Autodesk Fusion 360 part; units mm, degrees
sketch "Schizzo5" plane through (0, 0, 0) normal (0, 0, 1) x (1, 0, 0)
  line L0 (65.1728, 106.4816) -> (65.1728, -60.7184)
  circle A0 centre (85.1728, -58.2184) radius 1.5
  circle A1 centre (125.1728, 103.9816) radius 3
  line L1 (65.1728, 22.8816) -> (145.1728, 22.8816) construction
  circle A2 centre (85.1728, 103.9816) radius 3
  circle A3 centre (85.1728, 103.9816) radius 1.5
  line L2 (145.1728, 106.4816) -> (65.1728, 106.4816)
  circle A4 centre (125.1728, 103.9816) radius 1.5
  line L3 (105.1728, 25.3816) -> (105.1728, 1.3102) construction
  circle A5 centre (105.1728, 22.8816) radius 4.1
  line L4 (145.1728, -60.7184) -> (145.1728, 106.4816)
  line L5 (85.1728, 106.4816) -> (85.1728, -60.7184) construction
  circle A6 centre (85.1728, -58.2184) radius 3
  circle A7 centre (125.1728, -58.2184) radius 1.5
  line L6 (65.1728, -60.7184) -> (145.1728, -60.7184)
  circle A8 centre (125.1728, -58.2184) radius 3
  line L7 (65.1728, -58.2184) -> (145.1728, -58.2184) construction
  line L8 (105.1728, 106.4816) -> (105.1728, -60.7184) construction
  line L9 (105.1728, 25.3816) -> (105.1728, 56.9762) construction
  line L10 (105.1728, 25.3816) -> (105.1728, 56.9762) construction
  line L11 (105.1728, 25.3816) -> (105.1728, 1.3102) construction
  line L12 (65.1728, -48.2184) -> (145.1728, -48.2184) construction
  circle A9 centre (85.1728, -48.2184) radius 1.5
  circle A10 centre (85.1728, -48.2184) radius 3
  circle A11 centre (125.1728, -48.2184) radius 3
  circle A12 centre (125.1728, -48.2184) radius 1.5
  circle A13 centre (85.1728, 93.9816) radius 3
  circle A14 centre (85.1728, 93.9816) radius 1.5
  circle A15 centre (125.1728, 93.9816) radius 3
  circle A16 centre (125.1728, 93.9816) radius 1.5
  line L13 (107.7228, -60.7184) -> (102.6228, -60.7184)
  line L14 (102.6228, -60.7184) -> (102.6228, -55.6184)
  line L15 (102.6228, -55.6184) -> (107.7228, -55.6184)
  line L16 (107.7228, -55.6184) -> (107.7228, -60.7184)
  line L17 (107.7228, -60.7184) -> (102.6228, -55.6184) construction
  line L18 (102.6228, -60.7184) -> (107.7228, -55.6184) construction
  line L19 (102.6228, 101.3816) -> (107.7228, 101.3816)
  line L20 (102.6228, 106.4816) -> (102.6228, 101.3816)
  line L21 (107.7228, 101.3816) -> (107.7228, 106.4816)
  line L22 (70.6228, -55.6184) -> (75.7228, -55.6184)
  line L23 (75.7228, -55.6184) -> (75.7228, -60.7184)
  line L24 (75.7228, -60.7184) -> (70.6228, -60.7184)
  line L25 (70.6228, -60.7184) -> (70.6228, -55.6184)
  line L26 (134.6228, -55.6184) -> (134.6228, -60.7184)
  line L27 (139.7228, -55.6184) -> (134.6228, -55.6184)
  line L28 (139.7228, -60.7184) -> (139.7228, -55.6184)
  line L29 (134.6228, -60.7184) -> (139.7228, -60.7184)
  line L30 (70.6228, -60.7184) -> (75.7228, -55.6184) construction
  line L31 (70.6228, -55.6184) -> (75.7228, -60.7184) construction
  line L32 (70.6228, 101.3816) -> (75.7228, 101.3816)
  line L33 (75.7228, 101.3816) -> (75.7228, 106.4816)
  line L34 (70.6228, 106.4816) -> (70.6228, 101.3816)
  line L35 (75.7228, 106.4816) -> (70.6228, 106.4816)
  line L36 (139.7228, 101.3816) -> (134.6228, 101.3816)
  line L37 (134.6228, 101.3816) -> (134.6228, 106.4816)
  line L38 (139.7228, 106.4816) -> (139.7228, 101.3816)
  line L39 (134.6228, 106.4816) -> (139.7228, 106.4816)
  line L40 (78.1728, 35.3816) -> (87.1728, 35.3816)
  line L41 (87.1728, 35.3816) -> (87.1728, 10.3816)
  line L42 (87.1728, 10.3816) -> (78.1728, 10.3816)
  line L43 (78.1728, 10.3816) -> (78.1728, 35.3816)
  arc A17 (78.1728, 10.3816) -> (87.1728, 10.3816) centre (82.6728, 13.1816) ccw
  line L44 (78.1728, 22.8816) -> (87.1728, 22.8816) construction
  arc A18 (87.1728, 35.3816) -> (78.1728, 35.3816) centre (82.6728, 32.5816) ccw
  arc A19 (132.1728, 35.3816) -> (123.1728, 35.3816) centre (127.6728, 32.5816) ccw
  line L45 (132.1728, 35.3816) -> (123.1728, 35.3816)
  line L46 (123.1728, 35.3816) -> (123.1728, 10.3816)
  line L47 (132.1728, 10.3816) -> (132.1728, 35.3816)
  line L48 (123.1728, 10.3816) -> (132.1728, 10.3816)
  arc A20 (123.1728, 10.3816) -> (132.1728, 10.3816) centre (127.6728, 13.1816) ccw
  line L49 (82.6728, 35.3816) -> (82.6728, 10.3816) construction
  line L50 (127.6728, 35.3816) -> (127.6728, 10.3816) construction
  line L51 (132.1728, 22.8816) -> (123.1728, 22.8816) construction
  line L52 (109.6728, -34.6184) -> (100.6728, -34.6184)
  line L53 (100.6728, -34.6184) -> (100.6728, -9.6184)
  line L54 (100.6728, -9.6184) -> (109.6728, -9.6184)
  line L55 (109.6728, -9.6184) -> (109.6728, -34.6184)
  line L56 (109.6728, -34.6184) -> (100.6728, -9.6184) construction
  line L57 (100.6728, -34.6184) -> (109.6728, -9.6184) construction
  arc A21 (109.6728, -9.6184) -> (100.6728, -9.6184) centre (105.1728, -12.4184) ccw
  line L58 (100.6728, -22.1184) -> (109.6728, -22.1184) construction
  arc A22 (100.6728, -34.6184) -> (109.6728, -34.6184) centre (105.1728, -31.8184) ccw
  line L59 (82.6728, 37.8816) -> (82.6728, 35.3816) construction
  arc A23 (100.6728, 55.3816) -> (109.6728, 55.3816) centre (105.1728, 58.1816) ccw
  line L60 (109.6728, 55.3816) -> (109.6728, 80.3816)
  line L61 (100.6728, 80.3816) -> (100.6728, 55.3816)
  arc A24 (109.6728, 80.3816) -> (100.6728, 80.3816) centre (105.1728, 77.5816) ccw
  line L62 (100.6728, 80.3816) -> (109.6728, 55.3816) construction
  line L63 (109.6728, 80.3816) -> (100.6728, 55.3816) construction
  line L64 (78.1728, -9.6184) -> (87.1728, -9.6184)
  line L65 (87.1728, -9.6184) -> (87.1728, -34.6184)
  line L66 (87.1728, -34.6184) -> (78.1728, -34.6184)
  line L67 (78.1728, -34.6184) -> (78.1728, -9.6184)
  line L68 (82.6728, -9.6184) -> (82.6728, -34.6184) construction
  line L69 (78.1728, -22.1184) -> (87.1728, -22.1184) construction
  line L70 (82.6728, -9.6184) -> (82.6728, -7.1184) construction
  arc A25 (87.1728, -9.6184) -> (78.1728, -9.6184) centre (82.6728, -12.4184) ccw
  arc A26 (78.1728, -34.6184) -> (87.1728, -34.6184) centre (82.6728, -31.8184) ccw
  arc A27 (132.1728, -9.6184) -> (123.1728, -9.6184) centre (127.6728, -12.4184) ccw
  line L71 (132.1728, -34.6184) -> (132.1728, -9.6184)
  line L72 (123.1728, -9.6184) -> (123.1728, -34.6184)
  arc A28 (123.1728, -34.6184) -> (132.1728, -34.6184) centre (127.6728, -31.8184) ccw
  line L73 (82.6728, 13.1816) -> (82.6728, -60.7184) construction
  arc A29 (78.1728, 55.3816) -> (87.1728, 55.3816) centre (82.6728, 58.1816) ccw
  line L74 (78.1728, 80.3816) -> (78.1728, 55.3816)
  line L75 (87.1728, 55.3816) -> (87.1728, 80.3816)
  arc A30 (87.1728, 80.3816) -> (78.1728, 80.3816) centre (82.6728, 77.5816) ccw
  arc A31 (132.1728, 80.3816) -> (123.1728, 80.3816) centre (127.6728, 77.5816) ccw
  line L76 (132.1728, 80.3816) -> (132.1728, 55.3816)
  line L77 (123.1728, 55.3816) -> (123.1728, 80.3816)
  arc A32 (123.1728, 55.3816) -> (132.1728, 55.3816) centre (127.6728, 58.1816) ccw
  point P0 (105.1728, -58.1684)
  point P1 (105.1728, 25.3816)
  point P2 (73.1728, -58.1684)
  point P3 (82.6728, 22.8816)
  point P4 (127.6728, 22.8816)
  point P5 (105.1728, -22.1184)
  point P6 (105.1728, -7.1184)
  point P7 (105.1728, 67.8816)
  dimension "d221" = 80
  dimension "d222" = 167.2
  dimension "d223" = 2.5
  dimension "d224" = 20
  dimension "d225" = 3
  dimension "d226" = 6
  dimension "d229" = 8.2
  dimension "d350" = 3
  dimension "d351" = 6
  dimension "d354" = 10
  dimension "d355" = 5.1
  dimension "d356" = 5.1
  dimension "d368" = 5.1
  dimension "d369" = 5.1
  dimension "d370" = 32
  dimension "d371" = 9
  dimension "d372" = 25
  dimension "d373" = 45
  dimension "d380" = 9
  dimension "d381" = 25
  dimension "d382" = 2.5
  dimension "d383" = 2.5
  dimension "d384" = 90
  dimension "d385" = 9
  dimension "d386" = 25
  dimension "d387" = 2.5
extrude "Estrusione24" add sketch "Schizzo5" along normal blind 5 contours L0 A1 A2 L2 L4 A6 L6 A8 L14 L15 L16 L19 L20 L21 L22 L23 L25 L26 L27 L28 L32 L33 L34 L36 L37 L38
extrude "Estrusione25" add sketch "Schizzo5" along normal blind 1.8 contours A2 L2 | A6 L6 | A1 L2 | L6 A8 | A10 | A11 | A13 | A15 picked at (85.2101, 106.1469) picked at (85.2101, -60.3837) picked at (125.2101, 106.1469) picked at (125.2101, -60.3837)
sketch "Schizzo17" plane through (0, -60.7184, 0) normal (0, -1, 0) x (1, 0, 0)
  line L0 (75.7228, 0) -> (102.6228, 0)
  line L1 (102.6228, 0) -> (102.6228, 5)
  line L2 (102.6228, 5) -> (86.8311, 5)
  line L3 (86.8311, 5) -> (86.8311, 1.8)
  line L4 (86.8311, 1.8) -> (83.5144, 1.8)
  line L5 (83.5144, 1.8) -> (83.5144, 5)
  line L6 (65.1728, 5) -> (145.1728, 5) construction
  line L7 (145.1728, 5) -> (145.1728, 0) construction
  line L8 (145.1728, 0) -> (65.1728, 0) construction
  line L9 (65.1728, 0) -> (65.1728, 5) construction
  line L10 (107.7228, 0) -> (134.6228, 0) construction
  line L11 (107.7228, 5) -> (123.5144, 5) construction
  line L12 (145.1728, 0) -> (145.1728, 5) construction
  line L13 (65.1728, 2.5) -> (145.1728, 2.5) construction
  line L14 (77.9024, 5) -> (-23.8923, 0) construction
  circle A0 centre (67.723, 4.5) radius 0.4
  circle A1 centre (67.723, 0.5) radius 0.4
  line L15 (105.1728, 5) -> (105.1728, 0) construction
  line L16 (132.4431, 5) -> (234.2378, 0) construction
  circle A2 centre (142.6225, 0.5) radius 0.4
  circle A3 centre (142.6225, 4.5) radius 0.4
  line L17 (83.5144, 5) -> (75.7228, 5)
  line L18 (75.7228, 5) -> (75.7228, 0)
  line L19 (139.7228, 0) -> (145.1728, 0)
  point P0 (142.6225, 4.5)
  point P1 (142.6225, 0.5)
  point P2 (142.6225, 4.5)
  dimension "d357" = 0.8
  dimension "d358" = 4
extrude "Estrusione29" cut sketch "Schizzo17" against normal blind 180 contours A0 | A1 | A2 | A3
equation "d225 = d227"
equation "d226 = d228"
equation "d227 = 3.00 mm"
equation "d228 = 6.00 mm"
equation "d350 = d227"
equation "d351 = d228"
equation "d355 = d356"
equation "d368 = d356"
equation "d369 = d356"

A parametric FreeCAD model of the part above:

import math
import FreeCAD as App
import Part
import Sketcher

V = App.Vector
Q = App.Units.Quantity

doc = App.newDocument("Part")
body = doc.addObject("PartDesign::Body", "Body")

sketch1 = body.newObject("Sketcher::SketchObject", "Sketch")
sketch1.AttachmentSupport = (doc.getObject("XY_Plane"), [""])
sketch1.MapMode = "FlatFace"
sketch1.addGeometry([
    Part.LineSegment(V(70.6228, 106.4816, 0), V(65.1728, 106.4816, 0)),
    Part.LineSegment(V(65.1728, 106.4816, 0), V(65.1728, -60.7184, 0)),
    Part.LineSegment(V(65.1728, -60.7184, 0), V(70.6228, -60.7184, 0)),
    Part.LineSegment(V(70.6228, -60.7184, 0), V(70.6228, -55.6184, 0)),
    Part.LineSegment(V(70.6228, -55.6184, 0), V(75.7228, -55.6184, 0)),
    Part.LineSegment(V(75.7228, -55.6184, 0), V(75.7228, -60.7184, 0)),
    Part.LineSegment(V(75.7228, -60.7184, 0), V(83.514488, -60.7184, 0)),
    Part.ArcOfCircle(Part.Circle(V(85.1728, -58.2184, 0), V(0, 0, 1), 3), math.radians(-56.44269), math.radians(236.44269)),
    Part.LineSegment(V(86.831112, -60.7184, 0), V(102.6228, -60.7184, 0)),
    Part.LineSegment(V(102.6228, -60.7184, 0), V(102.6228, -55.6184, 0)),
    Part.LineSegment(V(102.6228, -55.6184, 0), V(107.7228, -55.6184, 0)),
    Part.LineSegment(V(107.7228, -55.6184, 0), V(107.7228, -60.7184, 0)),
    Part.LineSegment(V(107.7228, -60.7184, 0), V(123.514488, -60.7184, 0)),
    Part.ArcOfCircle(Part.Circle(V(125.1728, -58.2184, 0), V(0, 0, 1), 3), math.radians(-56.44269), math.radians(236.44269)),
    Part.LineSegment(V(126.831112, -60.7184, 0), V(134.6228, -60.7184, 0)),
    Part.LineSegment(V(134.6228, -60.7184, 0), V(134.6228, -55.6184, 0)),
    Part.LineSegment(V(134.6228, -55.6184, 0), V(139.7228, -55.6184, 0)),
    Part.LineSegment(V(139.7228, -55.6184, 0), V(139.7228, -60.7184, 0)),
    Part.LineSegment(V(139.7228, -60.7184, 0), V(145.1728, -60.7184, 0)),
    Part.LineSegment(V(145.1728, -60.7184, 0), V(145.1728, 106.4816, 0)),
    Part.LineSegment(V(145.1728, 106.4816, 0), V(139.7228, 106.4816, 0)),
    Part.LineSegment(V(139.7228, 106.4816, 0), V(139.7228, 101.3816, 0)),
    Part.LineSegment(V(139.7228, 101.3816, 0), V(134.6228, 101.3816, 0)),
    Part.LineSegment(V(134.6228, 101.3816, 0), V(134.6228, 106.4816, 0)),
    Part.LineSegment(V(134.6228, 106.4816, 0), V(126.831112, 106.4816, 0)),
    Part.ArcOfCircle(Part.Circle(V(125.1728, 103.9816, 0), V(0, 0, 1), 3), math.radians(123.55731), math.radians(416.44269)),
    Part.LineSegment(V(123.514488, 106.4816, 0), V(107.7228, 106.4816, 0)),
    Part.LineSegment(V(107.7228, 106.4816, 0), V(107.7228, 101.3816, 0)),
    Part.LineSegment(V(107.7228, 101.3816, 0), V(102.6228, 101.3816, 0)),
    Part.LineSegment(V(102.6228, 101.3816, 0), V(102.6228, 106.4816, 0)),
    Part.LineSegment(V(102.6228, 106.4816, 0), V(86.831112, 106.4816, 0)),
    Part.ArcOfCircle(Part.Circle(V(85.1728, 103.9816, 0), V(0, 0, 1), 3), math.radians(123.55731), math.radians(416.44269)),
    Part.LineSegment(V(83.514488, 106.4816, 0), V(75.7228, 106.4816, 0)),
    Part.LineSegment(V(75.7228, 106.4816, 0), V(75.7228, 101.3816, 0)),
    Part.LineSegment(V(75.7228, 101.3816, 0), V(70.6228, 101.3816, 0)),
    Part.LineSegment(V(70.6228, 101.3816, 0), V(70.6228, 106.4816, 0)),
    Part.LineSegment(V(78.1728, -34.6184, 0), V(78.1728, -9.6184, 0)),
    Part.ArcOfCircle(Part.Circle(V(82.6728, -12.4184, 0), V(0, 0, 1), 5.3), math.radians(31.890792), math.radians(148.109208)),
    Part.LineSegment(V(87.1728, -9.6184, 0), V(87.1728, -34.6184, 0)),
    Part.ArcOfCircle(Part.Circle(V(82.6728, -31.8184, 0), V(0, 0, 1), 5.3), math.radians(-148.109208), math.radians(-31.890792)),
    Part.Circle(V(85.1728, -48.2184, 0), V(0, 0, 1), 3),
    Part.LineSegment(V(109.6728, -9.6184, 0), V(109.6728, -34.6184, 0)),
    Part.ArcOfCircle(Part.Circle(V(105.1728, -31.8184, 0), V(0, 0, 1), 5.3), math.radians(-148.109208), math.radians(-31.890792)),
    Part.LineSegment(V(100.6728, -34.6184, 0), V(100.6728, -9.6184, 0)),
    Part.ArcOfCircle(Part.Circle(V(105.1728, -12.4184, 0), V(0, 0, 1), 5.3), math.radians(31.890792), math.radians(148.109208)),
    Part.Circle(V(125.1728, -48.2184, 0), V(0, 0, 1), 3),
    Part.ArcOfCircle(Part.Circle(V(127.6728, -12.4184, 0), V(0, 0, 1), 5.3), math.radians(31.890792), math.radians(148.109208)),
    Part.LineSegment(V(132.1728, -9.6184, 0), V(132.1728, -34.6184, 0)),
    Part.ArcOfCircle(Part.Circle(V(127.6728, -31.8184, 0), V(0, 0, 1), 5.3), math.radians(-148.109208), math.radians(-31.890792)),
    Part.LineSegment(V(123.1728, -34.6184, 0), V(123.1728, -9.6184, 0)),
    Part.LineSegment(V(78.1728, 10.3816, 0), V(78.1728, 35.3816, 0)),
    Part.ArcOfCircle(Part.Circle(V(82.6728, 32.5816, 0), V(0, 0, 1), 5.3), math.radians(31.890792), math.radians(148.109208)),
    Part.LineSegment(V(87.1728, 35.3816, 0), V(87.1728, 10.3816, 0)),
    Part.ArcOfCircle(Part.Circle(V(82.6728, 13.1816, 0), V(0, 0, 1), 5.3), math.radians(-148.109208), math.radians(-31.890792)),
    Part.ArcOfCircle(Part.Circle(V(82.6728, 58.1816, 0), V(0, 0, 1), 5.3), math.radians(-148.109208), math.radians(-31.890792)),
    Part.LineSegment(V(78.1728, 55.3816, 0), V(78.1728, 80.3816, 0)),
    Part.ArcOfCircle(Part.Circle(V(82.6728, 77.5816, 0), V(0, 0, 1), 5.3), math.radians(31.890792), math.radians(148.109208)),
    Part.LineSegment(V(87.1728, 80.3816, 0), V(87.1728, 55.3816, 0)),
    Part.Circle(V(85.1728, 93.9816, 0), V(0, 0, 1), 3),
    Part.Circle(V(105.1728, 22.8816, 0), V(0, 0, 1), 4.1),
    Part.ArcOfCircle(Part.Circle(V(127.6728, 32.5816, 0), V(0, 0, 1), 5.3), math.radians(31.890792), math.radians(148.109208)),
    Part.LineSegment(V(132.1728, 35.3816, 0), V(132.1728, 10.3816, 0)),
    Part.ArcOfCircle(Part.Circle(V(127.6728, 13.1816, 0), V(0, 0, 1), 5.3), math.radians(-148.109208), math.radians(-31.890792)),
    Part.LineSegment(V(123.1728, 10.3816, 0), V(123.1728, 35.3816, 0)),
    Part.ArcOfCircle(Part.Circle(V(105.1728, 58.1816, 0), V(0, 0, 1), 5.3), math.radians(-148.109208), math.radians(-31.890792)),
    Part.LineSegment(V(100.6728, 55.3816, 0), V(100.6728, 80.3816, 0)),
    Part.ArcOfCircle(Part.Circle(V(105.1728, 77.5816, 0), V(0, 0, 1), 5.3), math.radians(31.890792), math.radians(148.109208)),
    Part.LineSegment(V(109.6728, 80.3816, 0), V(109.6728, 55.3816, 0)),
    Part.ArcOfCircle(Part.Circle(V(127.6728, 77.5816, 0), V(0, 0, 1), 5.3), math.radians(31.890792), math.radians(148.109208)),
    Part.LineSegment(V(132.1728, 80.3816, 0), V(132.1728, 55.3816, 0)),
    Part.ArcOfCircle(Part.Circle(V(127.6728, 58.1816, 0), V(0, 0, 1), 5.3), math.radians(-148.109208), math.radians(-31.890792)),
    Part.LineSegment(V(123.1728, 55.3816, 0), V(123.1728, 80.3816, 0)),
    Part.Circle(V(125.1728, 93.9816, 0), V(0, 0, 1), 3),
], False)
sketch1.addConstraint([
    Sketcher.Constraint("Coincident", 0, 2, 1, 1),
    Sketcher.Constraint("Coincident", 1, 2, 2, 1),
    Sketcher.Constraint("Coincident", 2, 2, 3, 1),
    Sketcher.Constraint("Coincident", 3, 2, 4, 1),
    Sketcher.Constraint("Coincident", 4, 2, 5, 1),
    Sketcher.Constraint("Coincident", 5, 2, 6, 1),
    Sketcher.Constraint("Coincident", 6, 2, 7, 2),
    Sketcher.Constraint("Coincident", 7, 1, 8, 1),
    Sketcher.Constraint("Coincident", 8, 2, 9, 1),
    Sketcher.Constraint("Coincident", 9, 2, 10, 1),
    Sketcher.Constraint("Coincident", 10, 2, 11, 1),
    Sketcher.Constraint("Coincident", 11, 2, 12, 1),
    Sketcher.Constraint("Coincident", 12, 2, 13, 2),
    Sketcher.Constraint("Coincident", 13, 1, 14, 1),
    Sketcher.Constraint("Coincident", 14, 2, 15, 1),
    Sketcher.Constraint("Coincident", 15, 2, 16, 1),
    Sketcher.Constraint("Coincident", 16, 2, 17, 1),
    Sketcher.Constraint("Coincident", 17, 2, 18, 1),
    Sketcher.Constraint("Coincident", 18, 2, 19, 1),
    Sketcher.Constraint("Coincident", 19, 2, 20, 1),
    Sketcher.Constraint("Coincident", 20, 2, 21, 1),
    Sketcher.Constraint("Coincident", 21, 2, 22, 1),
    Sketcher.Constraint("Coincident", 22, 2, 23, 1),
    Sketcher.Constraint("Coincident", 23, 2, 24, 1),
    Sketcher.Constraint("Coincident", 24, 2, 25, 2),
    Sketcher.Constraint("Coincident", 25, 1, 26, 1),
    Sketcher.Constraint("Coincident", 26, 2, 27, 1),
    Sketcher.Constraint("Coincident", 27, 2, 28, 1),
    Sketcher.Constraint("Coincident", 28, 2, 29, 1),
    Sketcher.Constraint("Coincident", 29, 2, 30, 1),
    Sketcher.Constraint("Coincident", 30, 2, 31, 2),
    Sketcher.Constraint("Coincident", 31, 1, 32, 1),
    Sketcher.Constraint("Coincident", 32, 2, 33, 1),
    Sketcher.Constraint("Coincident", 33, 2, 34, 1),
    Sketcher.Constraint("Coincident", 34, 2, 35, 1),
    Sketcher.Constraint("Coincident", 35, 2, 0, 1),
    Sketcher.Constraint("Coincident", 36, 2, 37, 2),
    Sketcher.Constraint("Coincident", 37, 1, 38, 1),
    Sketcher.Constraint("Coincident", 38, 2, 39, 2),
    Sketcher.Constraint("Coincident", 39, 1, 36, 1),
    Sketcher.Constraint("Coincident", 41, 2, 42, 2),
    Sketcher.Constraint("Coincident", 42, 1, 43, 1),
    Sketcher.Constraint("Coincident", 43, 2, 44, 2),
    Sketcher.Constraint("Coincident", 44, 1, 41, 1),
    Sketcher.Constraint("Coincident", 46, 1, 47, 1),
    Sketcher.Constraint("Coincident", 47, 2, 48, 2),
    Sketcher.Constraint("Coincident", 48, 1, 49, 1),
    Sketcher.Constraint("Coincident", 49, 2, 46, 2),
    Sketcher.Constraint("Coincident", 50, 2, 51, 2),
    Sketcher.Constraint("Coincident", 51, 1, 52, 1),
    Sketcher.Constraint("Coincident", 52, 2, 53, 2),
    Sketcher.Constraint("Coincident", 53, 1, 50, 1),
    Sketcher.Constraint("Coincident", 54, 1, 55, 1),
    Sketcher.Constraint("Coincident", 55, 2, 56, 2),
    Sketcher.Constraint("Coincident", 56, 1, 57, 1),
    Sketcher.Constraint("Coincident", 57, 2, 54, 2),
    Sketcher.Constraint("Coincident", 60, 1, 61, 1),
    Sketcher.Constraint("Coincident", 61, 2, 62, 2),
    Sketcher.Constraint("Coincident", 62, 1, 63, 1),
    Sketcher.Constraint("Coincident", 63, 2, 60, 2),
    Sketcher.Constraint("Coincident", 64, 1, 65, 1),
    Sketcher.Constraint("Coincident", 65, 2, 66, 2),
    Sketcher.Constraint("Coincident", 66, 1, 67, 1),
    Sketcher.Constraint("Coincident", 67, 2, 64, 2),
    Sketcher.Constraint("Coincident", 68, 1, 69, 1),
    Sketcher.Constraint("Coincident", 69, 2, 70, 2),
    Sketcher.Constraint("Coincident", 70, 1, 71, 1),
    Sketcher.Constraint("Coincident", 71, 2, 68, 2),
    Sketcher.Constraint("Horizontal", 0),
    Sketcher.Constraint("Vertical", 1),
    Sketcher.Constraint("Horizontal", 2),
    Sketcher.Constraint("Vertical", 3),
    Sketcher.Constraint("Horizontal", 4),
    Sketcher.Constraint("Vertical", 5),
    Sketcher.Constraint("Horizontal", 6),
    Sketcher.Constraint("Horizontal", 8),
    Sketcher.Constraint("Vertical", 9),
    Sketcher.Constraint("Horizontal", 10),
    Sketcher.Constraint("Vertical", 11),
    Sketcher.Constraint("Horizontal", 12),
    Sketcher.Constraint("Horizontal", 14),
    Sketcher.Constraint("Vertical", 15),
    Sketcher.Constraint("Horizontal", 16),
    Sketcher.Constraint("Vertical", 17),
    Sketcher.Constraint("Horizontal", 18),
    Sketcher.Constraint("Vertical", 19),
    Sketcher.Constraint("Horizontal", 20),
    Sketcher.Constraint("Vertical", 21),
    Sketcher.Constraint("Horizontal", 22),
    Sketcher.Constraint("Vertical", 23),
    Sketcher.Constraint("Horizontal", 24),
    Sketcher.Constraint("Horizontal", 26),
    Sketcher.Constraint("Vertical", 27),
    Sketcher.Constraint("Horizontal", 28),
    Sketcher.Constraint("Vertical", 29),
    Sketcher.Constraint("Horizontal", 30),
    Sketcher.Constraint("Horizontal", 32),
    Sketcher.Constraint("Vertical", 33),
    Sketcher.Constraint("Horizontal", 34),
    Sketcher.Constraint("Vertical", 35),
    Sketcher.Constraint("Vertical", 36),
    Sketcher.Constraint("Vertical", 38),
    Sketcher.Constraint("Vertical", 41),
    Sketcher.Constraint("Vertical", 43),
    Sketcher.Constraint("Vertical", 47),
    Sketcher.Constraint("Vertical", 49),
    Sketcher.Constraint("Vertical", 50),
    Sketcher.Constraint("Vertical", 52),
    Sketcher.Constraint("Vertical", 55),
    Sketcher.Constraint("Vertical", 57),
    Sketcher.Constraint("Vertical", 61),
    Sketcher.Constraint("Vertical", 63),
    Sketcher.Constraint("Vertical", 65),
    Sketcher.Constraint("Vertical", 67),
    Sketcher.Constraint("Vertical", 69),
    Sketcher.Constraint("Vertical", 71),
    Sketcher.Constraint("Equal", 7, 13),
    Sketcher.Constraint("Equal", 13, 25),
    Sketcher.Constraint("Equal", 25, 31),
    Sketcher.Constraint("Equal", 37, 39),
    Sketcher.Constraint("Equal", 31, 40),
    Sketcher.Constraint("Equal", 39, 42),
    Sketcher.Constraint("Equal", 42, 44),
    Sketcher.Constraint("Equal", 40, 45),
    Sketcher.Constraint("Equal", 44, 46),
    Sketcher.Constraint("Equal", 46, 48),
    Sketcher.Constraint("Equal", 48, 51),
    Sketcher.Constraint("Equal", 51, 53),
    Sketcher.Constraint("Equal", 53, 54),
    Sketcher.Constraint("Equal", 54, 56),
    Sketcher.Constraint("Equal", 45, 58),
    Sketcher.Constraint("Equal", 56, 60),
    Sketcher.Constraint("Equal", 60, 62),
    Sketcher.Constraint("Equal", 62, 64),
    Sketcher.Constraint("Equal", 64, 66),
    Sketcher.Constraint("Equal", 66, 68),
    Sketcher.Constraint("Equal", 68, 70),
    Sketcher.Constraint("Equal", 58, 72),
    Sketcher.Constraint("Horizontal", 7, 3, 13, 3),
    Sketcher.Constraint("Horizontal", 25, 3, 31, 3),
    Sketcher.Constraint("Horizontal", 39, 3, 42, 3),
    Sketcher.Constraint("Horizontal", 37, 3, 44, 3),
    Sketcher.Constraint("Horizontal", 40, 3, 45, 3),
    Sketcher.Constraint("Horizontal", 44, 3, 46, 3),
    Sketcher.Constraint("Horizontal", 42, 3, 48, 3),
    Sketcher.Constraint("Horizontal", 51, 3, 60, 3),
    Sketcher.Constraint("Horizontal", 53, 3, 62, 3),
    Sketcher.Constraint("Horizontal", 54, 3, 64, 3),
    Sketcher.Constraint("Horizontal", 56, 3, 66, 3),
    Sketcher.Constraint("Horizontal", 66, 3, 68, 3),
    Sketcher.Constraint("Horizontal", 64, 3, 70, 3),
    Sketcher.Constraint("Horizontal", 58, 3, 72, 3),
    Sketcher.Constraint("Horizontal", 2, 2, 5, 2),
    Sketcher.Constraint("Horizontal", 6, 2, 7, 1),
    Sketcher.Constraint("Horizontal", 4, 2, 9, 2),
    Sketcher.Constraint("Horizontal", 8, 2, 11, 2),
    Sketcher.Constraint("Horizontal", 12, 2, 13, 1),
    Sketcher.Constraint("Horizontal", 10, 2, 15, 2),
    Sketcher.Constraint("Horizontal", 14, 2, 17, 2),
    Sketcher.Constraint("Horizontal", 0, 2, 19, 2),
    Sketcher.Constraint("Horizontal", 20, 2, 23, 2),
    Sketcher.Constraint("Horizontal", 24, 2, 25, 1),
    Sketcher.Constraint("Horizontal", 22, 2, 27, 2),
    Sketcher.Constraint("Horizontal", 26, 2, 29, 2),
    Sketcher.Constraint("Horizontal", 30, 2, 31, 1),
    Sketcher.Constraint("Horizontal", 28, 2, 33, 2),
    Sketcher.Constraint("Horizontal", 36, 2, 37, 1),
    Sketcher.Constraint("Horizontal", 38, 2, 39, 1),
    Sketcher.Constraint("Horizontal", 39, 1, 41, 2),
    Sketcher.Constraint("Horizontal", 41, 2, 42, 1),
    Sketcher.Constraint("Horizontal", 37, 1, 43, 2),
    Sketcher.Constraint("Horizontal", 44, 1, 46, 1),
    Sketcher.Constraint("Horizontal", 42, 1, 47, 2),
    Sketcher.Constraint("Horizontal", 47, 2, 48, 1),
    Sketcher.Constraint("Horizontal", 50, 2, 51, 1),
    Sketcher.Constraint("Horizontal", 52, 2, 53, 1),
    Sketcher.Constraint("Horizontal", 55, 2, 56, 1),
    Sketcher.Constraint("Horizontal", 54, 1, 57, 2),
    Sketcher.Constraint("Horizontal", 51, 1, 60, 1),
    Sketcher.Constraint("Horizontal", 53, 1, 61, 2),
    Sketcher.Constraint("Horizontal", 61, 2, 62, 1),
    Sketcher.Constraint("Horizontal", 57, 2, 64, 1),
    Sketcher.Constraint("Horizontal", 56, 1, 65, 2),
    Sketcher.Constraint("Horizontal", 65, 2, 66, 1),
    Sketcher.Constraint("Horizontal", 66, 1, 68, 1),
    Sketcher.Constraint("Horizontal", 67, 2, 69, 2),
    Sketcher.Constraint("Horizontal", 69, 2, 70, 1),
    Sketcher.Constraint("Vertical", 13, 3, 25, 3),
    Sketcher.Constraint("Vertical", 7, 3, 31, 3),
    Sketcher.Constraint("Vertical", 31, 3, 40, 3),
    Sketcher.Constraint("Vertical", 25, 3, 45, 3),
    Sketcher.Constraint("Vertical", 39, 3, 51, 3),
    Sketcher.Constraint("Vertical", 53, 3, 54, 3),
    Sketcher.Constraint("Vertical", 40, 3, 58, 3),
    Sketcher.Constraint("Vertical", 44, 3, 59, 3),
    Sketcher.Constraint("Vertical", 48, 3, 60, 3),
    Sketcher.Constraint("Vertical", 59, 3, 64, 3),
    Sketcher.Constraint("Vertical", 62, 3, 68, 3),
    Sketcher.Constraint("Vertical", 45, 3, 72, 3),
    Sketcher.Constraint("Vertical", 17, 2, 20, 2),
    Sketcher.Constraint("Vertical", 15, 2, 22, 2),
    Sketcher.Constraint("Vertical", 13, 1, 24, 2),
    Sketcher.Constraint("Vertical", 11, 2, 26, 2),
    Sketcher.Constraint("Vertical", 9, 2, 28, 2),
    Sketcher.Constraint("Vertical", 5, 2, 32, 2),
    Sketcher.Constraint("Vertical", 3, 2, 34, 2),
    Sketcher.Constraint("Vertical", 39, 1, 50, 2),
    Sketcher.Constraint("Vertical", 53, 1, 54, 1),
    Sketcher.Constraint("Equal", 4, 10),
    Sketcher.Constraint("Equal", 8, 12),
    Sketcher.Constraint("Equal", 6, 14),
    Sketcher.Constraint("Equal", 10, 16),
    Sketcher.Constraint("Equal", 2, 18),
    Sketcher.Constraint("Equal", 34, 3),
    Sketcher.Constraint("Equal", 17, 21),
    Sketcher.Constraint("Equal", 49, 50),
    Sketcher.Constraint("Equal", 52, 55),
    Sketcher.Constraint("Diameter", 40, Q("6 mm")),
    Sketcher.Constraint("Diameter", 59, Q("8.2 mm")),
    Sketcher.Constraint("DistanceY", 36, 1, 36, 2, Q("25 mm")),
    Sketcher.Constraint("DistanceX", 4, 1, 4, 2, Q("5.1 mm")),
    Sketcher.Constraint("DistanceY", 1, 2, 1, 1, Q("167.2 mm")),
    Sketcher.Constraint("Radius", 37, Q("5.3 mm")),
    Sketcher.Constraint("DistanceX", 0, 2, 0, 1, Q("5.45 mm")),
    Sketcher.Constraint("DistanceX", 6, 1, 6, 2, Q("7.7917 mm")),
    Sketcher.Constraint("DistanceX", 8, 1, 8, 2, Q("15.7917 mm")),
    Sketcher.Constraint("DistanceX", -1, 1, 7, 1, Q("86.831 mm")),
    Sketcher.Constraint("DistanceX", -1, 1, 13, 1, Q("126.831 mm")),
    Sketcher.Constraint("DistanceY", 7, 3, -1, 1, Q("58.2184 mm")),
    Sketcher.Constraint("DistanceX", -1, 1, 37, 3, Q("82.6728 mm")),
    Sketcher.Constraint("DistanceY", 37, 3, -1, 1, Q("12.4184 mm")),
    Sketcher.Constraint("DistanceY", 39, 3, -1, 1, Q("31.8184 mm")),
    Sketcher.Constraint("DistanceY", 40, 3, -1, 1, Q("48.2184 mm")),
    Sketcher.Constraint("DistanceX", -1, 1, 42, 3, Q("105.1728 mm")),
    Sketcher.Constraint("DistanceX", -1, 1, 46, 3, Q("127.6728 mm")),
    Sketcher.Constraint("DistanceY", -1, 1, 51, 3, Q("32.5816 mm")),
    Sketcher.Constraint("DistanceY", -1, 1, 54, 3, Q("58.1816 mm")),
    Sketcher.Constraint("DistanceY", -1, 1, 58, 3, Q("93.9816 mm")),
    Sketcher.Constraint("DistanceY", -1, 1, 59, 3, Q("22.8816 mm")),
])
pad1 = body.newObject("PartDesign::Pad", "Pad")
pad1.Profile = sketch1
pad1.Length = 5

sketch2 = body.newObject("Sketcher::SketchObject", "Sketch001")
sketch2.AttachmentSupport = (doc.getObject("XY_Plane"), [""])
sketch2.MapMode = "FlatFace"
sketch2.addGeometry([
    Part.LineSegment(V(86.831112, 106.4816, 0), V(83.514488, 106.4816, 0)),
    Part.ArcOfCircle(Part.Circle(V(85.1728, 103.9816, 0), V(0, 0, 1), 3), math.radians(123.55731), math.radians(416.44269)),
    Part.Circle(V(85.1728, 103.9816, 0), V(0, 0, 1), 1.5),
    Part.ArcOfCircle(Part.Circle(V(85.1728, -58.2184, 0), V(0, 0, 1), 3), math.radians(-56.44269), math.radians(236.44269)),
    Part.LineSegment(V(83.514488, -60.7184, 0), V(86.831112, -60.7184, 0)),
    Part.Circle(V(85.1728, -58.2184, 0), V(0, 0, 1), 1.5),
    Part.LineSegment(V(126.831112, 106.4816, 0), V(123.514488, 106.4816, 0)),
    Part.ArcOfCircle(Part.Circle(V(125.1728, 103.9816, 0), V(0, 0, 1), 3), math.radians(123.55731), math.radians(416.44269)),
    Part.Circle(V(125.1728, 103.9816, 0), V(0, 0, 1), 1.5),
    Part.ArcOfCircle(Part.Circle(V(125.1728, -58.2184, 0), V(0, 0, 1), 3), math.radians(-56.44269), math.radians(236.44269)),
    Part.LineSegment(V(123.514488, -60.7184, 0), V(126.831112, -60.7184, 0)),
    Part.Circle(V(125.1728, -58.2184, 0), V(0, 0, 1), 1.5),
    Part.Circle(V(85.1728, -48.2184, 0), V(0, 0, 1), 3),
    Part.Circle(V(85.1728, -48.2184, 0), V(0, 0, 1), 1.5),
    Part.Circle(V(125.1728, -48.2184, 0), V(0, 0, 1), 3),
    Part.Circle(V(125.1728, -48.2184, 0), V(0, 0, 1), 1.5),
    Part.Circle(V(85.1728, 93.9816, 0), V(0, 0, 1), 3),
    Part.Circle(V(85.1728, 93.9816, 0), V(0, 0, 1), 1.5),
    Part.Circle(V(125.1728, 93.9816, 0), V(0, 0, 1), 3),
    Part.Circle(V(125.1728, 93.9816, 0), V(0, 0, 1), 1.5),
], False)
sketch2.addConstraint([
    Sketcher.Constraint("Coincident", 0, 1, 1, 2),
    Sketcher.Constraint("Coincident", 1, 1, 0, 2),
    Sketcher.Constraint("Coincident", 3, 1, 4, 2),
    Sketcher.Constraint("Coincident", 4, 1, 3, 2),
    Sketcher.Constraint("Coincident", 6, 1, 7, 2),
    Sketcher.Constraint("Coincident", 7, 1, 6, 2),
    Sketcher.Constraint("Coincident", 9, 1, 10, 2),
    Sketcher.Constraint("Coincident", 10, 1, 9, 2),
    Sketcher.Constraint("Horizontal", 0),
    Sketcher.Constraint("Horizontal", 4),
    Sketcher.Constraint("Horizontal", 6),
    Sketcher.Constraint("Horizontal", 10),
    Sketcher.Constraint("Coincident", 2, 3, 1, 3),
    Sketcher.Constraint("Coincident", 5, 3, 3, 3),
    Sketcher.Constraint("Coincident", 8, 3, 7, 3),
    Sketcher.Constraint("Coincident", 11, 3, 9, 3),
    Sketcher.Constraint("Coincident", 13, 3, 12, 3),
    Sketcher.Constraint("Coincident", 15, 3, 14, 3),
    Sketcher.Constraint("Coincident", 17, 3, 16, 3),
    Sketcher.Constraint("Coincident", 19, 3, 18, 3),
    Sketcher.Constraint("Equal", 1, 3),
    Sketcher.Constraint("Equal", 2, 5),
    Sketcher.Constraint("Equal", 3, 7),
    Sketcher.Constraint("Equal", 5, 8),
    Sketcher.Constraint("Equal", 7, 9),
    Sketcher.Constraint("Equal", 8, 11),
    Sketcher.Constraint("Equal", 9, 12),
    Sketcher.Constraint("Equal", 11, 13),
    Sketcher.Constraint("Equal", 12, 14),
    Sketcher.Constraint("Equal", 13, 15),
    Sketcher.Constraint("Equal", 14, 16),
    Sketcher.Constraint("Equal", 15, 17),
    Sketcher.Constraint("Equal", 16, 18),
    Sketcher.Constraint("Equal", 17, 19),
    Sketcher.Constraint("Horizontal", 2, 3, 7, 3),
    Sketcher.Constraint("Horizontal", 5, 3, 9, 3),
    Sketcher.Constraint("Horizontal", 13, 3, 14, 3),
    Sketcher.Constraint("Horizontal", 17, 3, 18, 3),
    Sketcher.Constraint("Horizontal", 1, 1, 6, 1),
    Sketcher.Constraint("Horizontal", 4, 1, 9, 1),
    Sketcher.Constraint("Vertical", 2, 3, 3, 3),
    Sketcher.Constraint("Vertical", 8, 3, 9, 3),
    Sketcher.Constraint("Vertical", 5, 3, 12, 3),
    Sketcher.Constraint("Vertical", 11, 3, 14, 3),
    Sketcher.Constraint("Vertical", 13, 3, 16, 3),
    Sketcher.Constraint("Vertical", 15, 3, 18, 3),
    Sketcher.Constraint("Vertical", 0, 1, 3, 1),
    Sketcher.Constraint("Diameter", 2, Q("3 mm")),
    Sketcher.Constraint("Diameter", 12, Q("6 mm")),
    Sketcher.Constraint("DistanceY", 3, 3, 12, 3, Q("10 mm")),
    Sketcher.Constraint("DistanceY", 16, 3, 1, 3, Q("10 mm")),
    Sketcher.Constraint("DistanceY", 1, 3, 0, 1, Q("2.5 mm")),
    Sketcher.Constraint("DistanceX", 1, 3, 7, 3, Q("40 mm")),
    Sketcher.Constraint("DistanceY", 3, 3, 1, 3, Q("162.2 mm")),
    Sketcher.Constraint("DistanceX", -1, 1, 0, 1, Q("86.831 mm")),
    Sketcher.Constraint("DistanceY", -1, 1, 1, 3, Q("103.9816 mm")),
])
pad2 = body.newObject("PartDesign::Pad", "Pad001")
pad2.Profile = sketch2
pad2.Length = 1.8

sketch3 = body.newObject("Sketcher::SketchObject", "Sketch002")
sketch3.AttachmentSupport = (doc.getObject("XZ_Plane"), [""])
sketch3.MapMode = "FlatFace"
sketch3.AttachmentOffset = App.Placement(V(0, 0, 60.7184), App.Rotation())
sketch3.addGeometry([
    Part.Circle(V(67.723, 4.5, 0), V(0, 0, 1), 0.4),
    Part.Circle(V(67.723, 0.5, 0), V(0, 0, 1), 0.4),
    Part.Circle(V(142.6225, 0.5, 0), V(0, 0, 1), 0.4),
    Part.Circle(V(142.6225, 4.5, 0), V(0, 0, 1), 0.4),
], False)
sketch3.addConstraint([
    Sketcher.Constraint("Equal", 0, 1),
    Sketcher.Constraint("Equal", 1, 2),
    Sketcher.Constraint("Equal", 2, 3),
    Sketcher.Constraint("Horizontal", 1, 3, 2, 3),
    Sketcher.Constraint("Horizontal", 0, 3, 3, 3),
    Sketcher.Constraint("Vertical", 0, 3, 1, 3),
    Sketcher.Constraint("Vertical", 2, 3, 3, 3),
    Sketcher.Constraint("Diameter", 0, Q("0.8 mm")),
    Sketcher.Constraint("DistanceY", 1, 3, 0, 3, Q("4 mm")),
    Sketcher.Constraint("DistanceY", -1, 1, 0, 3, Q("4.5 mm")),
    Sketcher.Constraint("DistanceX", -1, 1, 0, 3, Q("67.723 mm")),
    Sketcher.Constraint("DistanceX", -1, 1, 2, 3, Q("142.6225 mm")),
])
pocket1 = body.newObject("PartDesign::Pocket", "Pocket")
pocket1.Profile = sketch3
pocket1.Length = 180

doc.recompute()
